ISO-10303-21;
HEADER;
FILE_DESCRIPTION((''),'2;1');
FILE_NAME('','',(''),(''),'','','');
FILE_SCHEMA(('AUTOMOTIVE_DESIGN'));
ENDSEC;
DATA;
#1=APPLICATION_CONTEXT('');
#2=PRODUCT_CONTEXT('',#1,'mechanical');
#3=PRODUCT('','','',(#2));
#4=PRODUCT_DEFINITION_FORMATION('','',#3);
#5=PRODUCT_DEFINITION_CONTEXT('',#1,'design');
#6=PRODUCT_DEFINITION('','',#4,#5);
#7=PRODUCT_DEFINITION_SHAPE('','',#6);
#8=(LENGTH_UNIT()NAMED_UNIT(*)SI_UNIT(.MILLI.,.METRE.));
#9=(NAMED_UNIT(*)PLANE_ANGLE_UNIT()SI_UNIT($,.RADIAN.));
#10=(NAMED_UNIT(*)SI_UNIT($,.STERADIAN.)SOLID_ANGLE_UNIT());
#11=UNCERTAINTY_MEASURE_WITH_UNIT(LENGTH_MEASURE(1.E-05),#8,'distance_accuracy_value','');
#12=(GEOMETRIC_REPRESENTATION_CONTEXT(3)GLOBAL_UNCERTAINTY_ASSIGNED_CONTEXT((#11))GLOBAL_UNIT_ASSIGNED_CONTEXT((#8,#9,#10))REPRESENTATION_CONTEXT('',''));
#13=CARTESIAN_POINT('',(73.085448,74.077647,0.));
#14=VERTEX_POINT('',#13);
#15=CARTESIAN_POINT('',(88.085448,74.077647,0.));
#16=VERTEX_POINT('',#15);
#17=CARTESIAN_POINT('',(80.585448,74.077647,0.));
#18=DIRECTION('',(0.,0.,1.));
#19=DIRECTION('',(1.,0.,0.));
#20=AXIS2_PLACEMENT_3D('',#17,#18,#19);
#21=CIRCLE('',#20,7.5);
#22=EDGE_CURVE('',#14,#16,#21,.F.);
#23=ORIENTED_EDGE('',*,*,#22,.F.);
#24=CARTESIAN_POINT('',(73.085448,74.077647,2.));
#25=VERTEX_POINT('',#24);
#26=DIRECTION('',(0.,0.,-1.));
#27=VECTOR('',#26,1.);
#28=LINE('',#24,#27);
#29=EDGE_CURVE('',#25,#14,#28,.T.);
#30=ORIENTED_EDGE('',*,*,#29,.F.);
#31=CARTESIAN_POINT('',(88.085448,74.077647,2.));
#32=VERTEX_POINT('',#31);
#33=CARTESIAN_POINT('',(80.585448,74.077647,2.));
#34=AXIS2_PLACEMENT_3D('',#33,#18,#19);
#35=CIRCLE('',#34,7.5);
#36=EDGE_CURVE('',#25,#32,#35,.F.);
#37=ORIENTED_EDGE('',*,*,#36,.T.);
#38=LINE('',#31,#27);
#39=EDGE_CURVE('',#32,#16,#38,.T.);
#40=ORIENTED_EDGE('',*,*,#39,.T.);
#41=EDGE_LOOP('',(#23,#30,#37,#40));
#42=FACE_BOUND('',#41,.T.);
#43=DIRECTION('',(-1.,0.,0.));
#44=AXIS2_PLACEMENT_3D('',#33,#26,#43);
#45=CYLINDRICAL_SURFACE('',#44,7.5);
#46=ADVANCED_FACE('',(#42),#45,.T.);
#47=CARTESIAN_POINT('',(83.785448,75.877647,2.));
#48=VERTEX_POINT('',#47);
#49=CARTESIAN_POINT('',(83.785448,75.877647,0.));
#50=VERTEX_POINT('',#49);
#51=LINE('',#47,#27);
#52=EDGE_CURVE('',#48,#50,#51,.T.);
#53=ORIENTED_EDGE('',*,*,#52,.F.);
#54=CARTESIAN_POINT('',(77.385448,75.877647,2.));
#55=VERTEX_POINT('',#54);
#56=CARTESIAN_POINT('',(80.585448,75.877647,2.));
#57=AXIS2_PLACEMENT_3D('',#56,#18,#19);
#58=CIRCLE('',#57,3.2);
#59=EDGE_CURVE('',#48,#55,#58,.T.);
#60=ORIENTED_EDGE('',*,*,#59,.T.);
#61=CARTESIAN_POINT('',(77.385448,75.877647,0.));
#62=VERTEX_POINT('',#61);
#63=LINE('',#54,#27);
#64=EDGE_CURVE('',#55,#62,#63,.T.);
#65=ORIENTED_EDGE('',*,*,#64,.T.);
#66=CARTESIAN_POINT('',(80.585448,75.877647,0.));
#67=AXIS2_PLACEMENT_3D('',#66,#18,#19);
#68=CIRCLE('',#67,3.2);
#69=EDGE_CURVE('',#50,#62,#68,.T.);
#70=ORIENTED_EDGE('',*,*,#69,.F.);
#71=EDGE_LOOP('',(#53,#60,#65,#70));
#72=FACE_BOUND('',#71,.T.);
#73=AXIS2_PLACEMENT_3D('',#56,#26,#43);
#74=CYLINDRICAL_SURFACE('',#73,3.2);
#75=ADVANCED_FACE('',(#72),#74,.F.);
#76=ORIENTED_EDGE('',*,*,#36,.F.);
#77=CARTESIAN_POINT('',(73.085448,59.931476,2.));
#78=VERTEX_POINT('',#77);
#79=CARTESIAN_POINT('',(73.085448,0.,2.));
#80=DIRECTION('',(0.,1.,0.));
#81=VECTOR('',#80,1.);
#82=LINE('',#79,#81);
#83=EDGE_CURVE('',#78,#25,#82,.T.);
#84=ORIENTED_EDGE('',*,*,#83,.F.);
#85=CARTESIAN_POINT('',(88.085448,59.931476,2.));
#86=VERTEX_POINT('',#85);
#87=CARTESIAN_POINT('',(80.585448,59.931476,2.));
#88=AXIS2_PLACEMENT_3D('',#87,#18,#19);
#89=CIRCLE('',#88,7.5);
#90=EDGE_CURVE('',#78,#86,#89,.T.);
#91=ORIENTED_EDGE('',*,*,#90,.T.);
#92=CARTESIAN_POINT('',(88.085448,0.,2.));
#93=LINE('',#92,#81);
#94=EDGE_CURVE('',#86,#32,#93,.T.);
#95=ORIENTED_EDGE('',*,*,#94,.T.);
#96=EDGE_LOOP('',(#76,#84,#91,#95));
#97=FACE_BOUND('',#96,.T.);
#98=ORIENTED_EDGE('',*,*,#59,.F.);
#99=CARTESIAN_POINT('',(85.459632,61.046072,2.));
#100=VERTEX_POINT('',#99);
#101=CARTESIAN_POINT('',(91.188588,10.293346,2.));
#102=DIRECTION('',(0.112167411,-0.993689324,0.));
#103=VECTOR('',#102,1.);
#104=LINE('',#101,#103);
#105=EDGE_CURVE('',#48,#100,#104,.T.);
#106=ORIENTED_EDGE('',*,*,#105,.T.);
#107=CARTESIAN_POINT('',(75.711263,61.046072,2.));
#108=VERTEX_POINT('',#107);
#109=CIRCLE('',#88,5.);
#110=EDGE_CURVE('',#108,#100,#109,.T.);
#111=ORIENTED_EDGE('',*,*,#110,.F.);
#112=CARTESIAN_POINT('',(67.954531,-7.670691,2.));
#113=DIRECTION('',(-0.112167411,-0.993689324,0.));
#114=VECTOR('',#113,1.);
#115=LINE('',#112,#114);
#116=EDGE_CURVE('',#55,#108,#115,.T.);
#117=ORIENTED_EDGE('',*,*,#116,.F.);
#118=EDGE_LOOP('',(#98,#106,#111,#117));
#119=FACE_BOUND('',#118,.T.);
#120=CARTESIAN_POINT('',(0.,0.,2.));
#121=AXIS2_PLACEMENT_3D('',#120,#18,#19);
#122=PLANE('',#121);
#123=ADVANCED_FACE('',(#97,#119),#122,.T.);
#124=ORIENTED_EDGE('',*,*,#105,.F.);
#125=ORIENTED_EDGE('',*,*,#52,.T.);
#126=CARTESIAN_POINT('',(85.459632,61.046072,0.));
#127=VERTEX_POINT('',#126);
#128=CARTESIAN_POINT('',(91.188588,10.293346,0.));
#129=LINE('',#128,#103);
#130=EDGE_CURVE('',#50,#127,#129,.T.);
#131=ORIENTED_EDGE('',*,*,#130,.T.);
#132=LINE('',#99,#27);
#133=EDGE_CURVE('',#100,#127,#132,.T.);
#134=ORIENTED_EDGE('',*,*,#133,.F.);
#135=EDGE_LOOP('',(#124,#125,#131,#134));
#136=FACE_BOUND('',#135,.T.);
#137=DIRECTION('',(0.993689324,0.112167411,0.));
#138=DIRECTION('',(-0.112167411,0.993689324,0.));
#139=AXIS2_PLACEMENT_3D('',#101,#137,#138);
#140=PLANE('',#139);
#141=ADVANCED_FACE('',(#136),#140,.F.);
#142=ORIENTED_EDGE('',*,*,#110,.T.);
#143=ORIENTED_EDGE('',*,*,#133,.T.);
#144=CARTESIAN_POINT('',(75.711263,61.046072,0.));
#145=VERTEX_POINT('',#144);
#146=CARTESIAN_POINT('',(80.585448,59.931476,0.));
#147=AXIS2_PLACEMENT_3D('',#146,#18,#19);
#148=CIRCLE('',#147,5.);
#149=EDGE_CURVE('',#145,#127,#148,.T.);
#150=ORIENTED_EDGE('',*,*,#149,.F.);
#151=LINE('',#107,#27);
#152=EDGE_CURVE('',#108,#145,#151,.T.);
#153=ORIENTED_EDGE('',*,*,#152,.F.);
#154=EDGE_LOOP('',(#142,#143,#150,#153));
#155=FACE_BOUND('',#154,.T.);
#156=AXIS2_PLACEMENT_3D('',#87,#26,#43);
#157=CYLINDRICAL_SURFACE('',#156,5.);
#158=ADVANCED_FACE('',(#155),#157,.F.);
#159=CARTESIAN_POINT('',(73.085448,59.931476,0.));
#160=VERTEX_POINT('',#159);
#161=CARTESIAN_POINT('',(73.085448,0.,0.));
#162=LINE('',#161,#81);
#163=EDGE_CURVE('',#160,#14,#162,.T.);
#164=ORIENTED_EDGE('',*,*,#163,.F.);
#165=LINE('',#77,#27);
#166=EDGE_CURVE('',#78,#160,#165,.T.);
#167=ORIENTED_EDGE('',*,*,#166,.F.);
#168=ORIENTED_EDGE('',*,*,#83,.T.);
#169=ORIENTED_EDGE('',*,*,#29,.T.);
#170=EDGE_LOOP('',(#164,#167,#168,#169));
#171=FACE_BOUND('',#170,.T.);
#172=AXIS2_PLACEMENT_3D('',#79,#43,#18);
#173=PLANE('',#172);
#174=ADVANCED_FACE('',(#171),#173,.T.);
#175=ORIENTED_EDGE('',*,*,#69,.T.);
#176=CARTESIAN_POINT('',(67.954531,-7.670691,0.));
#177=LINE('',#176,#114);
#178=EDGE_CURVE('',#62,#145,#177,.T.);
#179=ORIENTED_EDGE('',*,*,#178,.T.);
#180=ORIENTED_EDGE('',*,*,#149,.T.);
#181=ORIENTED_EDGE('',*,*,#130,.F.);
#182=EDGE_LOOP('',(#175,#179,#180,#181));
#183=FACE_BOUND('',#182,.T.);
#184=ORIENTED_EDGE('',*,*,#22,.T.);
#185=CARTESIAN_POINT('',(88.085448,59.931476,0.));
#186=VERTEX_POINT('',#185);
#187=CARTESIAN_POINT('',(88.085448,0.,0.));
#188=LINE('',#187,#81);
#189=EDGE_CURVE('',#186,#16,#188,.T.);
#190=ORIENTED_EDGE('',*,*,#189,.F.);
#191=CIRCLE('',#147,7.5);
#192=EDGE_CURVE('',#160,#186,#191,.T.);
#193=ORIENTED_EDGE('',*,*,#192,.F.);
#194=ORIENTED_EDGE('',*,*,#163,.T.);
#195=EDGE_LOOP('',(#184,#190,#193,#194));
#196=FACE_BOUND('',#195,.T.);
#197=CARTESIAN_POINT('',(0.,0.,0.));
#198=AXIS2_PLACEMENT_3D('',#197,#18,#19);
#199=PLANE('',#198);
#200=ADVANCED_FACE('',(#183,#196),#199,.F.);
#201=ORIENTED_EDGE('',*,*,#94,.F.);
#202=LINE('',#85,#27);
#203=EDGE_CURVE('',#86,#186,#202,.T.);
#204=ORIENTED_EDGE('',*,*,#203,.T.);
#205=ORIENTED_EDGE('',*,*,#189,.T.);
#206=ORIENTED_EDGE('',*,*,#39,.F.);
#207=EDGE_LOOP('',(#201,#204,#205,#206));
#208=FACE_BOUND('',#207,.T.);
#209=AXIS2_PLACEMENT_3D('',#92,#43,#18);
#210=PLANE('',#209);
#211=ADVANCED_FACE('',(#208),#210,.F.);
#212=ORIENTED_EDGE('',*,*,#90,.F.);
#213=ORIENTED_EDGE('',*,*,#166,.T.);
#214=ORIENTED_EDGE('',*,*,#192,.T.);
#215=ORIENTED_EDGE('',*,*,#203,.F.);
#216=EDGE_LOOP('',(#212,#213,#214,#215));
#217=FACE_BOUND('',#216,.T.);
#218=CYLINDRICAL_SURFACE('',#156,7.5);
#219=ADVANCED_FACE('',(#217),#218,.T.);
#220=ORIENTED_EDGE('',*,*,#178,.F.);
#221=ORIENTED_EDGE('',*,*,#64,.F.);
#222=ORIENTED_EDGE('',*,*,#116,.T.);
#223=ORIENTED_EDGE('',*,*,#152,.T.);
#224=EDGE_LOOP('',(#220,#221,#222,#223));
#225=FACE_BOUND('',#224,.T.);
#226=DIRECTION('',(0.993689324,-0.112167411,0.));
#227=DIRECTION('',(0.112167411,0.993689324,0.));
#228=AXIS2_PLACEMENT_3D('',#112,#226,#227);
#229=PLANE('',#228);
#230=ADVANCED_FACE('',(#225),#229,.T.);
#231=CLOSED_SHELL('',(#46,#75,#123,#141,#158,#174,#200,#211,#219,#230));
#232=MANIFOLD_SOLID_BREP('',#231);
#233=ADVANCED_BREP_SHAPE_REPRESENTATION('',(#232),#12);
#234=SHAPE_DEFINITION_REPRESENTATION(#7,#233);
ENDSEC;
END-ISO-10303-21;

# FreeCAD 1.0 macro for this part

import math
import FreeCAD as App
import Part
import Sketcher

V = App.Vector

doc = App.newDocument("Part")
params = doc.addObject("Spreadsheet::Sheet", "Params")
for row, (alias, value) in enumerate([
    ("sketch1_radius", "5 mm"),
    ("sketch1_radius2", "7.5 mm"),
    ("sketch1_radius3", "3.2 mm"),
    ("pad1_length", "2 mm"),
], start=1):
    params.set(f"A{row}", alias)
    params.set(f"B{row}", "=" + value)
    params.setAlias(f"B{row}", alias)

body = doc.addObject("PartDesign::Body", "Body")

sketch1 = doc.addObject("Sketcher::SketchObject", "Sketch")
body.addObject(sketch1)
sketch1.AttachmentSupport = (doc.XY_Plane, [""])
sketch1.MapMode = "FlatFace"
sketch1.addGeometry([
    Part.LineSegment(V(73.085448, 74.077647, 0), V(73.085448, 59.931476, 0)),
    Part.ArcOfCircle(Part.Circle(V(80.585448, 59.931476, 0), V(0, 0, 1), 7.5), math.radians(180), math.radians(360)),
    Part.LineSegment(V(88.085448, 59.931476, 0), V(88.085448, 74.077647, 0)),
    Part.ArcOfCircle(Part.Circle(V(80.585448, 74.077647, 0), V(0, 0, 1), 7.5), math.radians(0), math.radians(180)),
    Part.ArcOfCircle(Part.Circle(V(80.585448, 59.931476, 0), V(0, 0, 1), 5), math.radians(167.119455), math.radians(180)),
    Part.LineSegment(V(75.711263, 61.046072, 0), V(77.385448, 75.877647, 0)),
    Part.ArcOfCircle(Part.Circle(V(80.585448, 75.877647, 0), V(0, 0, 1), 3.2), math.radians(0), math.radians(180)),
    Part.LineSegment(V(83.785448, 75.877647, 0), V(85.459632, 61.046072, 0)),
    Part.ArcOfCircle(Part.Circle(V(80.585448, 59.931476, 0), V(0, 0, 1), 5), math.radians(0), math.radians(12.880545)),
    Part.ArcOfCircle(Part.Circle(V(80.585448, 59.931476, 0), V(0, 0, 1), 5), math.radians(180), math.radians(360)),
], False)
sketch1.addConstraint([
    Sketcher.Constraint("Tangent", 0, 2, 1, 1),
    Sketcher.Constraint("Tangent", 1, 2, 2, 1),
    Sketcher.Constraint("Tangent", 2, 2, 3, 1),
    Sketcher.Constraint("Tangent", 3, 2, 0, 1),
    Sketcher.Constraint("Coincident", 4, 1, 5, 1),
    Sketcher.Constraint("Coincident", 5, 2, 6, 2),
    Sketcher.Constraint("Coincident", 6, 1, 7, 1),
    Sketcher.Constraint("Coincident", 7, 2, 8, 2),
    Sketcher.Constraint("Tangent", 8, 1, 9, 2),
    Sketcher.Constraint("Tangent", 9, 1, 4, 2),
    Sketcher.Constraint("Vertical", 0),
    Sketcher.Constraint("Vertical", 2),
    Sketcher.Constraint("Coincident", 4, 3, 1, 3),
    Sketcher.Constraint("Equal", 4, 8),
    Sketcher.Constraint("Equal", 8, 9),
    Sketcher.Constraint("Horizontal", 6, 3, 5, 2),
    Sketcher.Constraint("Horizontal", 5, 2, 6, 1),
    Sketcher.Constraint("Horizontal", 4, 1, 7, 2),
    Sketcher.Constraint("Horizontal", 1, 2, 8, 1),
    Sketcher.Constraint("Horizontal", 8, 1, 9, 1),
    Sketcher.Constraint("Vertical", 4, 3, 6, 3),
    Sketcher.Constraint("Radius", 4, 5.0),
    Sketcher.Constraint("Radius", 1, 7.5),
    Sketcher.Constraint("Radius", 6, 3.2),
    Sketcher.Constraint("DistanceY", 3, 3, 6, 3, 1.8),
    Sketcher.Constraint("DistanceY", 0, 2, 0, 1, 14.146172),
    Sketcher.Constraint("DistanceY", -1, 1, 4, 1, 61.046072),
    Sketcher.Constraint("Distance", 5, 14.925768),
    Sketcher.Constraint("DistanceX", -1, 1, 1, 3, 80.585448),
])
sketch1.setExpression("Constraints[21]", "Params.sketch1_radius")
sketch1.setExpression("Constraints[22]", "Params.sketch1_radius2")
sketch1.setExpression("Constraints[23]", "Params.sketch1_radius3")
pad1 = doc.addObject("PartDesign::Pad", "Pad")
body.addObject(pad1)
pad1.Profile = sketch1
pad1.setExpression("Length", "Params.pad1_length")

doc.recompute()
